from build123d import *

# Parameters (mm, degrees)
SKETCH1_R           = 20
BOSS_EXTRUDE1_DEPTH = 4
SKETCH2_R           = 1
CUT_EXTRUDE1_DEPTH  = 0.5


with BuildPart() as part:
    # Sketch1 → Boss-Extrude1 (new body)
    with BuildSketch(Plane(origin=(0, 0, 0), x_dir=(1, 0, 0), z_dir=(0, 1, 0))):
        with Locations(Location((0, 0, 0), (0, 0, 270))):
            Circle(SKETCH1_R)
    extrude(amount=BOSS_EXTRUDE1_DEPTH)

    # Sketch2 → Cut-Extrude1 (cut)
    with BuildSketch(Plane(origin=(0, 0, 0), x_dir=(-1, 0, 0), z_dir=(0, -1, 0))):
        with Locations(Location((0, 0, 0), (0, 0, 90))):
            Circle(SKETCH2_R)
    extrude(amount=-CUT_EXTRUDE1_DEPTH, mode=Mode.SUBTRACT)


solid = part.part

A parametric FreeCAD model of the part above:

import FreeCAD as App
import Part
import Sketcher

V = App.Vector
Q = App.Units.Quantity

doc = App.newDocument("Part")
params = doc.addObject("Spreadsheet::Sheet", "Params")
for row, (alias, value) in enumerate([
    ("sketch1_diameter", "40 mm"),
    ("pad1_length", "4 mm"),
    ("sketch2_diameter", "2 mm"),
    ("pocket1_length", "0.5 mm"),
], start=1):
    params.set(f"A{row}", alias)
    params.set(f"B{row}", "=" + value)
    params.setAlias(f"B{row}", alias)

body = doc.addObject("PartDesign::Body", "Body")

sketch1 = body.newObject("Sketcher::SketchObject", "Sketch")
sketch1.AttachmentSupport = (doc.getObject("XZ_Plane"), [""])
sketch1.MapMode = "FlatFace"
sketch1.addGeometry(Part.Circle(V(0, 0, 0), V(0, 0, 1), 20), False)
sketch1.addConstraint([
    Sketcher.Constraint("Coincident", 0, 3, -1, 1),
    Sketcher.Constraint("Diameter", 0, Q("40 mm")),
])
sketch1.setExpression("Constraints[1]", "Params.sketch1_diameter")
pad1 = body.newObject("PartDesign::Pad", "Pad")
pad1.Profile = sketch1
pad1.setExpression("Length", "Params.pad1_length")
pad1.Reversed = True

sketch2 = body.newObject("Sketcher::SketchObject", "Sketch001")
sketch2.AttachmentSupport = (doc.getObject("XZ_Plane"), [""])
sketch2.MapMode = "FlatFace"
sketch2.addGeometry(Part.Circle(V(0, 0, 0), V(0, 0, 1), 1), False)
sketch2.addConstraint([
    Sketcher.Constraint("Coincident", 0, 3, -1, 1),
    Sketcher.Constraint("Diameter", 0, Q("2 mm")),
])
sketch2.setExpression("Constraints[1]", "Params.sketch2_diameter")
pocket1 = body.newObject("PartDesign::Pocket", "Pocket")
pocket1.Profile = sketch2
pocket1.setExpression("Length", "Params.pocket1_length")

doc.recompute()
